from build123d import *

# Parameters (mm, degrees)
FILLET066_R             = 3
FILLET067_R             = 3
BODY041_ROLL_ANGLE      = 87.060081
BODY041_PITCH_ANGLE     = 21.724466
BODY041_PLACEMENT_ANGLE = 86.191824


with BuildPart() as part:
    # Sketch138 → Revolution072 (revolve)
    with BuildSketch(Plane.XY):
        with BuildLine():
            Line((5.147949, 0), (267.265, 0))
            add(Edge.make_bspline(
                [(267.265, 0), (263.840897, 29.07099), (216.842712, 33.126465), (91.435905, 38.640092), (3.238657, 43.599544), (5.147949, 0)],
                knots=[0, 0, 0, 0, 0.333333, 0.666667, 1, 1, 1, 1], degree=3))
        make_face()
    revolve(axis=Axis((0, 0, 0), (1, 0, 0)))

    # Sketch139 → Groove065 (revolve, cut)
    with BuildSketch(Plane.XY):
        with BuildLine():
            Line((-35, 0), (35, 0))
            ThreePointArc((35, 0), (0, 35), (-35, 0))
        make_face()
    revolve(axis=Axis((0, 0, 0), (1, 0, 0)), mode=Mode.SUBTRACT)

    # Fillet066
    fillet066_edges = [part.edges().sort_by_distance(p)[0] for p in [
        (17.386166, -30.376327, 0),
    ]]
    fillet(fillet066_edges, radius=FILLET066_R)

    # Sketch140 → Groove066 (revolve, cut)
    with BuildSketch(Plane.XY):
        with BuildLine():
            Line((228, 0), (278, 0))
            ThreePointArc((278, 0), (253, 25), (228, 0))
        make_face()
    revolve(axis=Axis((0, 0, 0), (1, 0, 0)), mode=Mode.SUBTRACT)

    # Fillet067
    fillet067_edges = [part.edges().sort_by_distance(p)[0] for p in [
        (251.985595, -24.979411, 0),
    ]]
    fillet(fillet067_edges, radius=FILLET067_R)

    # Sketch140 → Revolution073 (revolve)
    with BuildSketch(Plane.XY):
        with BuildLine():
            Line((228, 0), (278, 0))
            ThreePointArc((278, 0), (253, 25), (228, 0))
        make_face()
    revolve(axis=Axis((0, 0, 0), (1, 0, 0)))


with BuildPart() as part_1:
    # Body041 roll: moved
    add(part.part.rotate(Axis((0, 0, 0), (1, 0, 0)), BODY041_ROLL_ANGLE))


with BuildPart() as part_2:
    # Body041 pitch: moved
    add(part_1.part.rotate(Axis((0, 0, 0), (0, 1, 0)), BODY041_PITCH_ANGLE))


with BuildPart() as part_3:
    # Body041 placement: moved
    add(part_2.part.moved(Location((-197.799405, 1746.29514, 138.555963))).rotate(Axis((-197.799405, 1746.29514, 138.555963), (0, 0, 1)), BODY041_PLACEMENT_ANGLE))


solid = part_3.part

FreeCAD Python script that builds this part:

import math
import FreeCAD as App
import Part
import Sketcher
from FreeCAD import Vector
Q = App.Units.Quantity


def edges_at(feature, points):
    """Names of the edges that pass closest to the given points."""
    edges = feature.Shape.Edges
    near = lambda p: min(range(len(edges)), key=lambda i: edges[i].distToShape(Part.Vertex(*p))[0])
    return sorted({f"Edge{near(p) + 1}" for p in points})

doc = App.newDocument("Part")
body = doc.addObject("PartDesign::Body", "Body")

# Sketch on XY plane
sketch1 = body.newObject("Sketcher::SketchObject", "Sketch")
sketch1.AttachmentSupport = (doc.getObject("XY_Plane"), [""])
sketch1.MapMode = "FlatFace"
sketch1.addGeometry([
    Part.LineSegment(Vector(5.147949, 0, 0), Vector(267.265, 0, 0)),
    Part.BSplineCurve([Vector(267.265, 0, 0), Vector(263.840897, 29.07099, 0), Vector(216.842712, 33.126465, 0), Vector(91.435905, 38.640092, 0), Vector(3.238657, 43.599544, 0), Vector(5.147949, 0, 0)], [4, 1, 1, 4], [0, 0.333333, 0.666667, 1], False, 3, [1, 1, 1, 1, 1, 1], False),
], False)
sketch1.addConstraint([
    Sketcher.Constraint("Block", 1),
    Sketcher.Constraint("Coincident", 0, 1, 1, 2),
    Sketcher.Constraint("Coincident", 1, 1, 0, 2),
])
revolution = body.newObject("PartDesign::Revolution", "Revolution")
revolution.Profile = sketch1
revolution.ReferenceAxis = (sketch1, ["H_Axis"])
revolution.Angle = 360

# Sketch on XY plane
sketch2 = body.newObject("Sketcher::SketchObject", "Sketch001")
sketch2.AttachmentSupport = (doc.getObject("XY_Plane"), [""])
sketch2.MapMode = "FlatFace"
sketch2.addGeometry([
    Part.LineSegment(Vector(-35, 0, 0), Vector(35, 0, 0)),
    Part.ArcOfCircle(Part.Circle(Vector(0, 0, 0), Vector(0, 0, 1), 35), math.radians(0), math.radians(180)),
], False)
sketch2.addConstraint([
    Sketcher.Constraint("Coincident", 0, 1, 1, 2),
    Sketcher.Constraint("Coincident", 1, 1, 0, 2),
    Sketcher.Constraint("Horizontal", 0),
    Sketcher.Constraint("Coincident", 1, 3, -1, 1),
    Sketcher.Constraint("PointOnObject", 0, 1, -1),
    Sketcher.Constraint("Radius", 1, Q("35 mm")),
])
groove = body.newObject("PartDesign::Groove", "Groove")
groove.Profile = sketch2
groove.ReferenceAxis = (sketch2, ["H_Axis"])
groove.Angle = 360
doc.recompute()

fillet = body.newObject("PartDesign::Fillet", "Fillet")
fillet.Base = (groove, edges_at(groove, [(17.386, -30.376, 0)]))
fillet.Radius = 3

# Sketch on XY plane
sketch3 = body.newObject("Sketcher::SketchObject", "Sketch002")
sketch3.AttachmentSupport = (doc.getObject("XY_Plane"), [""])
sketch3.MapMode = "FlatFace"
sketch3.addGeometry([
    Part.LineSegment(Vector(228, 0, 0), Vector(278, 0, 0)),
    Part.ArcOfCircle(Part.Circle(Vector(253, 0, 0), Vector(0, 0, 1), 25), math.radians(0), math.radians(180)),
], False)
sketch3.addConstraint([
    Sketcher.Constraint("Coincident", 0, 1, 1, 2),
    Sketcher.Constraint("Coincident", 1, 1, 0, 2),
    Sketcher.Constraint("Horizontal", 0),
    Sketcher.Constraint("PointOnObject", 1, 3, -1),
    Sketcher.Constraint("PointOnObject", 0, 1, -1),
    Sketcher.Constraint("Radius", 1, Q("25 mm")),
    Sketcher.Constraint("DistanceX", -1, 1, 1, 3, Q("253 mm")),
])
groove2 = body.newObject("PartDesign::Groove", "Groove001")
groove2.Profile = sketch3
groove2.ReferenceAxis = (sketch3, ["H_Axis"])
groove2.Angle = 360
doc.recompute()

fillet2 = body.newObject("PartDesign::Fillet", "Fillet001")
fillet2.Base = (groove2, edges_at(groove2, [(251.986, -24.979, 0)]))
fillet2.Radius = 3

# Sketch on XY plane
sketch4 = body.newObject("Sketcher::SketchObject", "Sketch003")
sketch4.AttachmentSupport = (doc.getObject("XY_Plane"), [""])
sketch4.MapMode = "FlatFace"
sketch4.addGeometry([
    Part.LineSegment(Vector(228, 0, 0), Vector(278, 0, 0)),
    Part.ArcOfCircle(Part.Circle(Vector(253, 0, 0), Vector(0, 0, 1), 25), math.radians(0), math.radians(180)),
], False)
sketch4.addConstraint([
    Sketcher.Constraint("Coincident", 0, 1, 1, 2),
    Sketcher.Constraint("Coincident", 1, 1, 0, 2),
    Sketcher.Constraint("Horizontal", 0),
    Sketcher.Constraint("PointOnObject", 1, 3, -1),
    Sketcher.Constraint("PointOnObject", 0, 1, -1),
    Sketcher.Constraint("Radius", 1, Q("25 mm")),
    Sketcher.Constraint("DistanceX", -1, 1, 1, 3, Q("253 mm")),
])
revolution2 = body.newObject("PartDesign::Revolution", "Revolution001")
revolution2.Profile = sketch4
revolution2.ReferenceAxis = (sketch4, ["H_Axis"])
revolution2.Angle = 360
body2 = doc.addObject("PartDesign::Body", "Body001")
doc.recompute()

body.Placement = App.Placement(Vector(0, 0, 0), App.Rotation(Vector(1, 0, 0), 87.060081))
boolean = body2.newObject("PartDesign::Boolean", "Boolean")
boolean.Type = "Fuse"
boolean.addObjects([body])
body3 = doc.addObject("PartDesign::Body", "Body002")
doc.recompute()

body2.Placement = App.Placement(Vector(0, 0, 0), App.Rotation(Vector(0, 1, 0), 21.724466))
boolean2 = body3.newObject("PartDesign::Boolean", "Boolean001")
boolean2.Type = "Fuse"
boolean2.addObjects([body2])
body4 = doc.addObject("PartDesign::Body", "Body003")
doc.recompute()

body3.Placement = App.Placement(Vector(-197.799405, 1746.29514, 138.555963), App.Rotation(Vector(0, 0, 1), 86.191824))
boolean3 = body4.newObject("PartDesign::Boolean", "Boolean002")
boolean3.Type = "Fuse"
boolean3.addObjects([body3])

doc.recompute()
